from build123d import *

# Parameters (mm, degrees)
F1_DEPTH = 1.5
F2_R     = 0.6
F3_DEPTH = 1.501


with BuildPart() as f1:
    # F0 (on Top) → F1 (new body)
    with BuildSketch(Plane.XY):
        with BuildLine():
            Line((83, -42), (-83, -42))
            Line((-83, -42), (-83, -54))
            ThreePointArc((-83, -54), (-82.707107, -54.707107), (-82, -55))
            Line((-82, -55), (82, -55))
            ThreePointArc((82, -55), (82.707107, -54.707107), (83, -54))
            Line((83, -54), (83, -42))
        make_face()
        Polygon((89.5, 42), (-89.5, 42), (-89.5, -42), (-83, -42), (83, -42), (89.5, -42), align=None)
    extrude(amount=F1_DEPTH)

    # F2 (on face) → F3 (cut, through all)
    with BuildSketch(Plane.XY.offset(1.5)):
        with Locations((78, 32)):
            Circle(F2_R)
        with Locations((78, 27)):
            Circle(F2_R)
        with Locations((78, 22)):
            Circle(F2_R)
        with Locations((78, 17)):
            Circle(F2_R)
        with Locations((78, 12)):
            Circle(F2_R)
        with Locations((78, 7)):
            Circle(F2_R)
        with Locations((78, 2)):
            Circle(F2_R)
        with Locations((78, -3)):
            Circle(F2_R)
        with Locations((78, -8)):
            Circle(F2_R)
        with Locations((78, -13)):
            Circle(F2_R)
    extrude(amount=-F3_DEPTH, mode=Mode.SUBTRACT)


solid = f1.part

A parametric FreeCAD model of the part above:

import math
import FreeCAD as App
import Part
import Sketcher
Q = App.Units.Quantity

doc = App.newDocument("Part")
params = doc.addObject("Spreadsheet::Sheet", "Params")
for row, (alias, value) in enumerate([
    ("sketch1_radius", "0.999999 mm"),
    ("sketch1_width", "164 mm"),
    ("sketch1_width2", "179 mm"),
    ("sketch1_height", "12 mm"),
    ("sketch1_height2", "84 mm"),
    ("pad1_length", "1.5 mm"),
    ("sketch2_diameter", "1.2 mm"),
], start=1):
    params.set(f"A{row}", alias)
    params.set(f"B{row}", "=" + value)
    params.setAlias(f"B{row}", alias)

body = doc.addObject("PartDesign::Body", "Body")

sketch1 = body.newObject("Sketcher::SketchObject", "Sketch")
sketch1.AttachmentSupport = (doc.getObject("XY_Plane"), [""])
sketch1.MapMode = "FlatFace"
sketch1.addGeometry(Part.LineSegment(App.Vector(-83, -42, 0), App.Vector(-83, -54, 0)), False)
sketch1.addGeometry(Part.ArcOfCircle(Part.Circle(App.Vector(-82, -54, 0), App.Vector(0, 0, 1), 1), math.radians(180), math.radians(270)), False)
sketch1.addGeometry(Part.LineSegment(App.Vector(-82, -55, 0), App.Vector(82, -55, 0)), False)
sketch1.addGeometry(Part.ArcOfCircle(Part.Circle(App.Vector(82, -54, 0), App.Vector(0, 0, 1), 1), math.radians(-90), math.radians(0)), False)
sketch1.addGeometry(Part.LineSegment(App.Vector(83, -54, 0), App.Vector(83, -42, 0)), False)
sketch1.addGeometry(Part.LineSegment(App.Vector(83, -42, 0), App.Vector(89.5, -42, 0)), False)
sketch1.addGeometry(Part.LineSegment(App.Vector(89.5, -42, 0), App.Vector(89.5, 42, 0)), False)
sketch1.addGeometry(Part.LineSegment(App.Vector(89.5, 42, 0), App.Vector(-89.5, 42, 0)), False)
sketch1.addGeometry(Part.LineSegment(App.Vector(-89.5, 42, 0), App.Vector(-89.5, -42, 0)), False)
sketch1.addGeometry(Part.LineSegment(App.Vector(-89.5, -42, 0), App.Vector(-83, -42, 0)), False)
sketch1.addConstraint(Sketcher.Constraint("Tangent", 0, 2, 1, 1))
sketch1.addConstraint(Sketcher.Constraint("Tangent", 1, 2, 2, 1))
sketch1.addConstraint(Sketcher.Constraint("Tangent", 2, 2, 3, 1))
sketch1.addConstraint(Sketcher.Constraint("Tangent", 3, 2, 4, 1))
sketch1.addConstraint(Sketcher.Constraint("Coincident", 4, 2, 5, 1))
sketch1.addConstraint(Sketcher.Constraint("Coincident", 5, 2, 6, 1))
sketch1.addConstraint(Sketcher.Constraint("Coincident", 6, 2, 7, 1))
sketch1.addConstraint(Sketcher.Constraint("Coincident", 7, 2, 8, 1))
sketch1.addConstraint(Sketcher.Constraint("Coincident", 8, 2, 9, 1))
sketch1.addConstraint(Sketcher.Constraint("Coincident", 9, 2, 0, 1))
sketch1.addConstraint(Sketcher.Constraint("Vertical", 0))
sketch1.addConstraint(Sketcher.Constraint("Horizontal", 2))
sketch1.addConstraint(Sketcher.Constraint("Vertical", 4))
sketch1.addConstraint(Sketcher.Constraint("Horizontal", 5))
sketch1.addConstraint(Sketcher.Constraint("Vertical", 6))
sketch1.addConstraint(Sketcher.Constraint("Horizontal", 7))
sketch1.addConstraint(Sketcher.Constraint("Vertical", 8))
sketch1.addConstraint(Sketcher.Constraint("Horizontal", 9))
sketch1.addConstraint(Sketcher.Constraint("Equal", 1, 3))
sketch1.addConstraint(Sketcher.Constraint("Symmetric", 5, 2, 7, 2, -1, 1))
sketch1.addConstraint(Sketcher.Constraint("Symmetric", 4, 2, 9, 2, -2))
sketch1.addConstraint(Sketcher.Constraint("Radius", 1, Q("0.999999 mm")))
sketch1.addConstraint(Sketcher.Constraint("DistanceX", 2, 1, 2, 2, Q("164 mm")))
sketch1.addConstraint(Sketcher.Constraint("DistanceX", 7, 2, 7, 1, Q("179 mm")))
sketch1.addConstraint(Sketcher.Constraint("DistanceY", 0, 2, 0, 1, Q("12 mm")))
sketch1.addConstraint(Sketcher.Constraint("DistanceY", 6, 1, 6, 2, Q("84 mm")))
sketch1.setExpression("Constraints[21]", "Params.sketch1_radius")
sketch1.setExpression("Constraints[22]", "Params.sketch1_width")
sketch1.setExpression("Constraints[23]", "Params.sketch1_width2")
sketch1.setExpression("Constraints[24]", "Params.sketch1_height")
sketch1.setExpression("Constraints[25]", "Params.sketch1_height2")
pad1 = body.newObject("PartDesign::Pad", "Pad")
pad1.Profile = sketch1
pad1.setExpression("Length", "Params.pad1_length")

sketch2 = body.newObject("Sketcher::SketchObject", "Sketch001")
sketch2.AttachmentSupport = (doc.getObject("XY_Plane"), [""])
sketch2.MapMode = "FlatFace"
sketch2.AttachmentOffset = App.Placement(App.Vector(0, 0, 1.5), App.Rotation())
sketch2.addGeometry(Part.Circle(App.Vector(78, 32, 0), App.Vector(0, 0, 1), 0.6), False)
sketch2.addGeometry(Part.Circle(App.Vector(78, 27, 0), App.Vector(0, 0, 1), 0.6), False)
sketch2.addGeometry(Part.Circle(App.Vector(78, 22, 0), App.Vector(0, 0, 1), 0.6), False)
sketch2.addGeometry(Part.Circle(App.Vector(78, 17, 0), App.Vector(0, 0, 1), 0.6), False)
sketch2.addGeometry(Part.Circle(App.Vector(78, 12, 0), App.Vector(0, 0, 1), 0.6), False)
sketch2.addGeometry(Part.Circle(App.Vector(78, 7, 0), App.Vector(0, 0, 1), 0.6), False)
sketch2.addGeometry(Part.Circle(App.Vector(78, 2, 0), App.Vector(0, 0, 1), 0.6), False)
sketch2.addGeometry(Part.Circle(App.Vector(78, -3, 0), App.Vector(0, 0, 1), 0.6), False)
sketch2.addGeometry(Part.Circle(App.Vector(78, -8, 0), App.Vector(0, 0, 1), 0.6), False)
sketch2.addGeometry(Part.Circle(App.Vector(78, -13, 0), App.Vector(0, 0, 1), 0.6), False)
sketch2.addConstraint(Sketcher.Constraint("Equal", 0, 1))
sketch2.addConstraint(Sketcher.Constraint("Equal", 1, 2))
sketch2.addConstraint(Sketcher.Constraint("Equal", 2, 3))
sketch2.addConstraint(Sketcher.Constraint("Equal", 3, 4))
sketch2.addConstraint(Sketcher.Constraint("Equal", 4, 5))
sketch2.addConstraint(Sketcher.Constraint("Equal", 5, 6))
sketch2.addConstraint(Sketcher.Constraint("Equal", 6, 7))
sketch2.addConstraint(Sketcher.Constraint("Equal", 7, 8))
sketch2.addConstraint(Sketcher.Constraint("Equal", 8, 9))
sketch2.addConstraint(Sketcher.Constraint("Vertical", 0, 3, 1, 3))
sketch2.addConstraint(Sketcher.Constraint("Vertical", 1, 3, 2, 3))
sketch2.addConstraint(Sketcher.Constraint("Vertical", 2, 3, 3, 3))
sketch2.addConstraint(Sketcher.Constraint("Vertical", 3, 3, 4, 3))
sketch2.addConstraint(Sketcher.Constraint("Vertical", 4, 3, 5, 3))
sketch2.addConstraint(Sketcher.Constraint("Vertical", 5, 3, 6, 3))
sketch2.addConstraint(Sketcher.Constraint("Vertical", 6, 3, 7, 3))
sketch2.addConstraint(Sketcher.Constraint("Vertical", 7, 3, 8, 3))
sketch2.addConstraint(Sketcher.Constraint("Vertical", 8, 3, 9, 3))
sketch2.addConstraint(Sketcher.Constraint("Diameter", 0, Q("1.2 mm")))
sketch2.addConstraint(Sketcher.Constraint("DistanceX", -1, 1, 0, 3, Q("78 mm")))
sketch2.addConstraint(Sketcher.Constraint("DistanceY", -1, 1, 0, 3, Q("32 mm")))
sketch2.addConstraint(Sketcher.Constraint("DistanceY", -1, 1, 1, 3, Q("27 mm")))
sketch2.addConstraint(Sketcher.Constraint("DistanceY", -1, 1, 2, 3, Q("22 mm")))
sketch2.addConstraint(Sketcher.Constraint("DistanceY", -1, 1, 3, 3, Q("17 mm")))
sketch2.addConstraint(Sketcher.Constraint("DistanceY", -1, 1, 4, 3, Q("12 mm")))
sketch2.addConstraint(Sketcher.Constraint("DistanceY", -1, 1, 5, 3, Q("7 mm")))
sketch2.addConstraint(Sketcher.Constraint("DistanceY", -1, 1, 6, 3, Q("2 mm")))
sketch2.addConstraint(Sketcher.Constraint("DistanceY", 7, 3, -1, 1, Q("3 mm")))
sketch2.addConstraint(Sketcher.Constraint("DistanceY", 8, 3, -1, 1, Q("8 mm")))
sketch2.addConstraint(Sketcher.Constraint("DistanceY", 9, 3, -1, 1, Q("13 mm")))
sketch2.setExpression("Constraints[18]", "Params.sketch2_diameter")
pocket1 = body.newObject("PartDesign::Pocket", "Pocket")
pocket1.Profile = sketch2
pocket1.Type = "ThroughAll"

doc.recompute()
